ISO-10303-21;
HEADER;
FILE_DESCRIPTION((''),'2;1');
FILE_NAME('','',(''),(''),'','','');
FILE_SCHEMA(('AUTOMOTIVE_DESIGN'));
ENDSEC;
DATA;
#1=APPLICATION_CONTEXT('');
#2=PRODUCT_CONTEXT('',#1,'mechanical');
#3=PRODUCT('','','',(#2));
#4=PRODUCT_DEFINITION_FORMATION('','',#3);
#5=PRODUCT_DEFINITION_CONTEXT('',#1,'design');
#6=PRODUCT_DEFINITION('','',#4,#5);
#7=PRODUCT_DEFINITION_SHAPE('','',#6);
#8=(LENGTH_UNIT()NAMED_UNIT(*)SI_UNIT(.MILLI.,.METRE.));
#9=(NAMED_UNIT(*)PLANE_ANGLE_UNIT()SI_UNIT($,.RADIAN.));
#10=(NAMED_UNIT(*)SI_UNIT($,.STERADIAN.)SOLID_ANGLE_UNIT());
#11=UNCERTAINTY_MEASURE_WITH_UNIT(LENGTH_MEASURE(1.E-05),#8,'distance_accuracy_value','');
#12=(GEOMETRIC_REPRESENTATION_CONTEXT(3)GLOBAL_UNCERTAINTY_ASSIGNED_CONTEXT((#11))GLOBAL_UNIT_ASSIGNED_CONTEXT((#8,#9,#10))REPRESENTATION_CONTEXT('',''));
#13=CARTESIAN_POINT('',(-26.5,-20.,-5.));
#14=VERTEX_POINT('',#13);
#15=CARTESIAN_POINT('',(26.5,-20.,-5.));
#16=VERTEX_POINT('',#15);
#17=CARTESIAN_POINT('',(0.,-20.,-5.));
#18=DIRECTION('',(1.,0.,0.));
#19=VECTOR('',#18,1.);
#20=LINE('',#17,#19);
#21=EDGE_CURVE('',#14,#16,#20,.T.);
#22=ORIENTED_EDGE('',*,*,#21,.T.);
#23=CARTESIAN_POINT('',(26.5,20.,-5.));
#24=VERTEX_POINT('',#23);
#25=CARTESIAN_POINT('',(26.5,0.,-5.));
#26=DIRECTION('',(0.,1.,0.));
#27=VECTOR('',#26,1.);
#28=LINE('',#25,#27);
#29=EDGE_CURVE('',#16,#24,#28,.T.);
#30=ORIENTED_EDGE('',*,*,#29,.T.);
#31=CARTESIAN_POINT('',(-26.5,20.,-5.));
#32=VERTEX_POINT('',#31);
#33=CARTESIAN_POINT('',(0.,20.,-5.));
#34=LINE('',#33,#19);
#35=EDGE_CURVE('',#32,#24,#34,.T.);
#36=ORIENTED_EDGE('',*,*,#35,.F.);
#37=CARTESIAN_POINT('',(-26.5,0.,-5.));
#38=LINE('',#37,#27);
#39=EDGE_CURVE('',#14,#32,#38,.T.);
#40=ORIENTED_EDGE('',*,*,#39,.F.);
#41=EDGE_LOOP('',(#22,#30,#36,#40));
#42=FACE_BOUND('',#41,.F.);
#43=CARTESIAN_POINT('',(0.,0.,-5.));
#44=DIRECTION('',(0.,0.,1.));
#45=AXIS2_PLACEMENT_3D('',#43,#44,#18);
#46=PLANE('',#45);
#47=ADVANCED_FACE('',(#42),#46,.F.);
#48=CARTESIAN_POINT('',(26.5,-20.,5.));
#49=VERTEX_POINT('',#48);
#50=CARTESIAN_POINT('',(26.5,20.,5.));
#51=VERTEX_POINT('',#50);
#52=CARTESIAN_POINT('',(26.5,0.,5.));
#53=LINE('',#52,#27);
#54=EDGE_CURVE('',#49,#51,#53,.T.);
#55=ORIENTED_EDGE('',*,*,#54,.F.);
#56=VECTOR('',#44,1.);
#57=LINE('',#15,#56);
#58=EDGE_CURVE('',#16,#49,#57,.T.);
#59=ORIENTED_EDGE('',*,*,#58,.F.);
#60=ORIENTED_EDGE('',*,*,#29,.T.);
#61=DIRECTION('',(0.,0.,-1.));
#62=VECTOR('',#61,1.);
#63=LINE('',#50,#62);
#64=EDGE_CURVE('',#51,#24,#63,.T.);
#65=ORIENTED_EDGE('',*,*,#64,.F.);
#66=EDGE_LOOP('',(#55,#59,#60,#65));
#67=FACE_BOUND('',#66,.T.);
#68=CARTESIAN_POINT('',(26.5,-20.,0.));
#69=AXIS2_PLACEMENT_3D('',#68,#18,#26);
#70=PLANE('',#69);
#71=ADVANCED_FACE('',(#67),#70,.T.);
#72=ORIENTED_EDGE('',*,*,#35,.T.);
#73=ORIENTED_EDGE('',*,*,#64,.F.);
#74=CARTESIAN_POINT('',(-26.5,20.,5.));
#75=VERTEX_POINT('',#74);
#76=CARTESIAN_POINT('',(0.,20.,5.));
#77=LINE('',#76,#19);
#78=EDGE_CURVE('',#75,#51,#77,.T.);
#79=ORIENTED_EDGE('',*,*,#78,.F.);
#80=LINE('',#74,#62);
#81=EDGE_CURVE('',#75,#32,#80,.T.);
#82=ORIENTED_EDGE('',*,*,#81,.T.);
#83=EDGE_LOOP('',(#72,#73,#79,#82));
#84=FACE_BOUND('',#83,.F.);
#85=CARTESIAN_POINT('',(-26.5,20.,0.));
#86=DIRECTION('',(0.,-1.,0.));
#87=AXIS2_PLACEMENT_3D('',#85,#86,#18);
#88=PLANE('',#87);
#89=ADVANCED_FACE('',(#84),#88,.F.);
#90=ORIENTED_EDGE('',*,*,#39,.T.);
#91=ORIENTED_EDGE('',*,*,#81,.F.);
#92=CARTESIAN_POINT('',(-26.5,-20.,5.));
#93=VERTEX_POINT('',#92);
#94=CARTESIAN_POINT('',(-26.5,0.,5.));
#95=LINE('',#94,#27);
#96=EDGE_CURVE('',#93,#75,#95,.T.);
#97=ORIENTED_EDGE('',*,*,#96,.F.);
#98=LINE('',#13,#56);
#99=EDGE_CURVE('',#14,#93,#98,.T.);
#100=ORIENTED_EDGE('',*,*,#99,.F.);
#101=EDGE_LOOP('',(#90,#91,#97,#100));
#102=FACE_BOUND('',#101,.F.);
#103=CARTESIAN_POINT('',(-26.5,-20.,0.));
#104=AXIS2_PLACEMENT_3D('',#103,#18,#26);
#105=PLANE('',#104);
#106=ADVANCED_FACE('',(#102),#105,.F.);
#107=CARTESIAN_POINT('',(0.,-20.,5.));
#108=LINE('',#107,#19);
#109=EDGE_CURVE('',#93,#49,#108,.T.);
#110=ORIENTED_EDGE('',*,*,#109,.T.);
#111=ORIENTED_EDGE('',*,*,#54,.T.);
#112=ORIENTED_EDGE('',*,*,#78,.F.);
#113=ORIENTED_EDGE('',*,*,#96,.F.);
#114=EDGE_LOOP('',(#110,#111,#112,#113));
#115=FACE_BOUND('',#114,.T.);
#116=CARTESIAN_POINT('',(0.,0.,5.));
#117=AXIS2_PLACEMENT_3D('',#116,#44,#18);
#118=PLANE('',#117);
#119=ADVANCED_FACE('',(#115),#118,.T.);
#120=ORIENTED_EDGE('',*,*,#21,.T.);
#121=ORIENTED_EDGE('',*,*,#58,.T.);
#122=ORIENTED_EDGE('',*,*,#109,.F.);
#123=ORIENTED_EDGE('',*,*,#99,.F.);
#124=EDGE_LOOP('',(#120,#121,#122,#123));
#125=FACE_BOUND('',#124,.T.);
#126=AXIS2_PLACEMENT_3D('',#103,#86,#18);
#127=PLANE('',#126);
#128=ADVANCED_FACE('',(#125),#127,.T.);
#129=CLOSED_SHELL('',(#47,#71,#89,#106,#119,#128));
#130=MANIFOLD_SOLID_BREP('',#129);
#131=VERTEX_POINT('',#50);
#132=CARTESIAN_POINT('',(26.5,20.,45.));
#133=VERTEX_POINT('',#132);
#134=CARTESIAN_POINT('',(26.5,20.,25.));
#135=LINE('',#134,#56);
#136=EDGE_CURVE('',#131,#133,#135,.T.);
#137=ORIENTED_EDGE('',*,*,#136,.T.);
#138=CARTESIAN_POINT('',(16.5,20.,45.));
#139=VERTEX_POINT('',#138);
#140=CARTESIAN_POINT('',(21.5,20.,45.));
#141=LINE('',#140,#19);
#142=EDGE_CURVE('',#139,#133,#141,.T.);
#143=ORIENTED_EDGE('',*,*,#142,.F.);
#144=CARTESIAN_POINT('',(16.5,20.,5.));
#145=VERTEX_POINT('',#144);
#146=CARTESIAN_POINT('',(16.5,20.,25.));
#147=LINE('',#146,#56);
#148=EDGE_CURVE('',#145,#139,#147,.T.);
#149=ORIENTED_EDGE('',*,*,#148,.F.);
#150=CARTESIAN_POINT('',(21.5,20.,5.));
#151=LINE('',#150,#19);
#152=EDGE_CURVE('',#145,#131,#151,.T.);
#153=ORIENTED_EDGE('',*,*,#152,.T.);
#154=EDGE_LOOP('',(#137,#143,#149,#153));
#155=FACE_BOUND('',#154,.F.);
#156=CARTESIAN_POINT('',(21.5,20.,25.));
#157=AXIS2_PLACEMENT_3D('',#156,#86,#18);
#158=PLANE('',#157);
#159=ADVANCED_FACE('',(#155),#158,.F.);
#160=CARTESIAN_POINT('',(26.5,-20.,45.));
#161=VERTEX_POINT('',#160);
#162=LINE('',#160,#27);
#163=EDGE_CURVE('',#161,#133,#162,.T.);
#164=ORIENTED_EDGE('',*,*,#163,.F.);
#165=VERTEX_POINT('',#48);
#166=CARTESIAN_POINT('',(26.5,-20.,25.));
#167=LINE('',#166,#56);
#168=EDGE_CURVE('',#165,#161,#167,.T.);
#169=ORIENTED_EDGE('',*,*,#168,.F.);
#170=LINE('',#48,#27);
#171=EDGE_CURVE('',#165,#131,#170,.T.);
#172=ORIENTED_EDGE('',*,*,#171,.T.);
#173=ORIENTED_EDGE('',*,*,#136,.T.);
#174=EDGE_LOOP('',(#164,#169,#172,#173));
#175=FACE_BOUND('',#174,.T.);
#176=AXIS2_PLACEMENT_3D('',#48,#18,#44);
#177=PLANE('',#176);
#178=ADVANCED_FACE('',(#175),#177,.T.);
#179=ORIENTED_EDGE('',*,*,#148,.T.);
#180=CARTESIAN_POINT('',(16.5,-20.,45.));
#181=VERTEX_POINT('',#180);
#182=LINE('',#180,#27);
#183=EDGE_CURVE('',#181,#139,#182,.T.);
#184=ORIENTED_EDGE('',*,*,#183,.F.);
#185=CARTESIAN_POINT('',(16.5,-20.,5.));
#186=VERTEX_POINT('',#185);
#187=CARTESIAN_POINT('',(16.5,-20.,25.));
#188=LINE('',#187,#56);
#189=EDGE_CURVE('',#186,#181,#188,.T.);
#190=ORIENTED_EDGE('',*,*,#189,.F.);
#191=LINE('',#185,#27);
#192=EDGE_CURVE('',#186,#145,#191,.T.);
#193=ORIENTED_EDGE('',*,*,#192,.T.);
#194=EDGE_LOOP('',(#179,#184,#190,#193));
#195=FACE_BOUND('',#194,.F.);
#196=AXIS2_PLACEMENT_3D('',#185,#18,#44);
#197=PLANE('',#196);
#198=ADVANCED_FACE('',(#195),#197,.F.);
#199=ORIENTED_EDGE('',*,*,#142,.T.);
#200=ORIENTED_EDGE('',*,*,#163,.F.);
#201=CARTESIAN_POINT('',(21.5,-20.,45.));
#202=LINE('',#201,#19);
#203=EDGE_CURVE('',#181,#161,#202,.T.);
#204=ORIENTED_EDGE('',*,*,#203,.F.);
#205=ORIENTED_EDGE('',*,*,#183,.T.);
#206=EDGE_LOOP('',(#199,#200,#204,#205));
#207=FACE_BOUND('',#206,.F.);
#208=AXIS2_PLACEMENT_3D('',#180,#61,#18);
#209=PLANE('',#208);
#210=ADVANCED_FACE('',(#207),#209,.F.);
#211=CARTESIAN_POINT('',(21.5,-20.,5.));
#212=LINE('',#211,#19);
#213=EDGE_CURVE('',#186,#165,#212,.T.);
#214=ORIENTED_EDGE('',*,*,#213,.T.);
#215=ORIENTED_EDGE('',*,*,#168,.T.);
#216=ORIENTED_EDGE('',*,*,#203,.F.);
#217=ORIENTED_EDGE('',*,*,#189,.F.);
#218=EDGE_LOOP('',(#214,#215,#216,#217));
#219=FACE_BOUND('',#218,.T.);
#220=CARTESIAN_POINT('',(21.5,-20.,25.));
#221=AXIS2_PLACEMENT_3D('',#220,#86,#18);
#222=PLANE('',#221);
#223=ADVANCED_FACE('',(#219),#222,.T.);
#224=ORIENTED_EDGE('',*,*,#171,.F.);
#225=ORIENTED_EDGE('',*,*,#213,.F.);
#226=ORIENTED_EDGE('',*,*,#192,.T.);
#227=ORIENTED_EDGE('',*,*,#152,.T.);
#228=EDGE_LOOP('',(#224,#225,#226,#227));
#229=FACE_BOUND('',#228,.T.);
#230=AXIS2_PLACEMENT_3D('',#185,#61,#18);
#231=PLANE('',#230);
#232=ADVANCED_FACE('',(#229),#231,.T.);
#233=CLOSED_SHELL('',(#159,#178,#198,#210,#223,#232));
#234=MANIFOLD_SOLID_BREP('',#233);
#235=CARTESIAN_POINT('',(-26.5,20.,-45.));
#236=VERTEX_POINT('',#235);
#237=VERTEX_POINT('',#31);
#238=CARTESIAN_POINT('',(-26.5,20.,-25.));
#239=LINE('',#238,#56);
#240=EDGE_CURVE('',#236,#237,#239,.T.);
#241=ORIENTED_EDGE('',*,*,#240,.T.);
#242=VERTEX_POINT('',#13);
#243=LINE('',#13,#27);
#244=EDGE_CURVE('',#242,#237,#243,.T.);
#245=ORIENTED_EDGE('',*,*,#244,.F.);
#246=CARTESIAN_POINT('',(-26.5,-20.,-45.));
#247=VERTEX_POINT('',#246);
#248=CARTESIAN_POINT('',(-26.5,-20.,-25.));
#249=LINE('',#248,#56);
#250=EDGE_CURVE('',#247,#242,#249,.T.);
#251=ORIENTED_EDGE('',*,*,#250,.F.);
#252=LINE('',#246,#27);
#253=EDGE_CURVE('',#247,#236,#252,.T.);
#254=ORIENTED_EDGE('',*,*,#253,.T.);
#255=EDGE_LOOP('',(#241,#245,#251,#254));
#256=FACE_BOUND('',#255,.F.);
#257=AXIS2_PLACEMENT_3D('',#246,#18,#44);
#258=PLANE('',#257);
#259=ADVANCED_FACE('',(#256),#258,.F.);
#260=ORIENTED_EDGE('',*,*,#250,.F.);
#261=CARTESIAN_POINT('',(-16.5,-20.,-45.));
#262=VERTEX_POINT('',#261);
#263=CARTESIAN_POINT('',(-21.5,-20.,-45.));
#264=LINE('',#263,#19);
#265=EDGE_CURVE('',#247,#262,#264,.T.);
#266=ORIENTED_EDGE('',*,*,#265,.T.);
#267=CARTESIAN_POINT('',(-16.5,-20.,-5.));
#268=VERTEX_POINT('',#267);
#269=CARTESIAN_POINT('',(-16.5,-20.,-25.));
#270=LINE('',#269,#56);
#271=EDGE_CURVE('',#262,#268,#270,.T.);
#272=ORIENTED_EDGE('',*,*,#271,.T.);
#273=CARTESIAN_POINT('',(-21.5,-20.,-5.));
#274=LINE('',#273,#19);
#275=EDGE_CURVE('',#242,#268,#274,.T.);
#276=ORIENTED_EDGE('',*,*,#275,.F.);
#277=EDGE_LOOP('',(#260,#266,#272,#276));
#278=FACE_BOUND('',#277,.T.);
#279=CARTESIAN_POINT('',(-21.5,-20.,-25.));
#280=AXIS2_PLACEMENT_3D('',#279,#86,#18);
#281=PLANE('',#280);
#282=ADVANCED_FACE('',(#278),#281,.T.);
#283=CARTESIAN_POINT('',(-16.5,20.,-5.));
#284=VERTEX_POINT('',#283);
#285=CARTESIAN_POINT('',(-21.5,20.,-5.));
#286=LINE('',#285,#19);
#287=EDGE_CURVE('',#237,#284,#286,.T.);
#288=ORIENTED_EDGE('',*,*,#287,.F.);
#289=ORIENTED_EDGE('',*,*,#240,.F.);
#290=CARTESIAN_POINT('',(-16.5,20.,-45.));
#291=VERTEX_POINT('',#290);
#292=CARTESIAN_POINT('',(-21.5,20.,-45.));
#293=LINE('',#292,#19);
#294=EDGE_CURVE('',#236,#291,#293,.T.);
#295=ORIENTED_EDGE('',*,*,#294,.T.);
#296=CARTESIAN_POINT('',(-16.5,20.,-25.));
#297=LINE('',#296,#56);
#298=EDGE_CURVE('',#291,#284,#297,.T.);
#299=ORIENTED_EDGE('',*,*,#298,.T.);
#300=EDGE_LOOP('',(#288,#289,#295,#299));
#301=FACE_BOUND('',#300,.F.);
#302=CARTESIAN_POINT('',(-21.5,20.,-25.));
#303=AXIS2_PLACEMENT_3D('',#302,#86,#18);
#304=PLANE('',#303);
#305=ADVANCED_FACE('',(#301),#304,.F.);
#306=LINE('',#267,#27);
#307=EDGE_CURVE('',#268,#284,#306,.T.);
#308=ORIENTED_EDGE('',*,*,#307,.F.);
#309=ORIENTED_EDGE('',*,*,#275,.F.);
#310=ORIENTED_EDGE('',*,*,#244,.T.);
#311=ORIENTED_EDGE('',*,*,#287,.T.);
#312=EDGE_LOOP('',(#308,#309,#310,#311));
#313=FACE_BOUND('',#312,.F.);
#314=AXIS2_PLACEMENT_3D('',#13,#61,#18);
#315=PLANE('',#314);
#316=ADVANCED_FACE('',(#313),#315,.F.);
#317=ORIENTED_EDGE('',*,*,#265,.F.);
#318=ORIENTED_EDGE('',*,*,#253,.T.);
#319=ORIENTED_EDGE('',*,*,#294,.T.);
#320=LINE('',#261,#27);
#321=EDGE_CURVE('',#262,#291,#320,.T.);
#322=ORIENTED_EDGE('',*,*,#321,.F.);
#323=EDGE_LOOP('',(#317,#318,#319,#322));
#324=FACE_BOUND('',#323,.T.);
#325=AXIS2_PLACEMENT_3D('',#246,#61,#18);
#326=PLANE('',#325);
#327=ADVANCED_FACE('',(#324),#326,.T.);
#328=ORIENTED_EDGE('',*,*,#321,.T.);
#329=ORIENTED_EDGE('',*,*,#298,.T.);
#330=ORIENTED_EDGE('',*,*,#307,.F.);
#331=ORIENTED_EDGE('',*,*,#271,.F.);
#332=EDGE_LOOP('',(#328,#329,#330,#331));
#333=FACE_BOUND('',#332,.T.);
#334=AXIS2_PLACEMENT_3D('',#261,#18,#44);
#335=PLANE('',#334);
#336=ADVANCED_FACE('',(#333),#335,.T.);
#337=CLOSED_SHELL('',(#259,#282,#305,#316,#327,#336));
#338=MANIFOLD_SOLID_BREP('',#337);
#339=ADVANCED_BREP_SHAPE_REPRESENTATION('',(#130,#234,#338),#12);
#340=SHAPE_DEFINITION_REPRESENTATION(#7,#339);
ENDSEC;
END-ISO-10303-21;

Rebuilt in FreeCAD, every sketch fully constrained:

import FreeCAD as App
import Part
import Sketcher


def add_polygon(sketch, points):
    """Adds a closed chain of lines whose ends are joined by coincident constraints."""
    first, n = sketch.GeometryCount, len(points)
    for a, b in zip(points, points[1:] + points[:1]):
        sketch.addGeometry(Part.LineSegment(App.Vector(*a, 0), App.Vector(*b, 0)), False)
    for i in range(n):
        sketch.addConstraint(Sketcher.Constraint("Coincident", first + i, 2, first + (i + 1) % n, 1))

doc = App.newDocument("Part")
body = doc.addObject("PartDesign::Body", "Body")

sketch1 = body.newObject("Sketcher::SketchObject", "Sketch")
sketch1.AttachmentSupport = (doc.getObject("XY_Plane"), [""])
sketch1.MapMode = "FlatFace"
add_polygon(sketch1, [(-26, 20), (-26, -20), (26, -20), (26, 20)])
sketch1.addConstraint([
    Sketcher.Constraint("Vertical", 0),
    Sketcher.Constraint("Horizontal", 1),
    Sketcher.Constraint("Vertical", 2),
    Sketcher.Constraint("Horizontal", 3),
    Sketcher.Constraint("Symmetric", 0, 2, 2, 2, -1, 1),
    Sketcher.Constraint("DistanceX", 1, 1, 1, 2, 53.0),
    Sketcher.Constraint("DistanceY", 0, 2, 0, 1, 40.0),
])
pad1 = body.newObject("PartDesign::Pad", "Pad")
pad1.Profile = sketch1
pad1.Length = 10
pad1.Midplane = True
body2 = doc.addObject("PartDesign::Body", "Body001")

sketch2 = body2.newObject("Sketcher::SketchObject", "Sketch001")
sketch2.AttachmentSupport = (doc.getObject("XZ_Plane001"), [""])
sketch2.MapMode = "FlatFace"
sketch2.AttachmentOffset = App.Placement(App.Vector(0, 0, 20), App.Rotation())
add_polygon(sketch2, [(-26, -5), (-26, -45), (-16, -45), (-16, -5)])
sketch2.addConstraint([
    Sketcher.Constraint("Vertical", 0),
    Sketcher.Constraint("Horizontal", 1),
    Sketcher.Constraint("Vertical", 2),
    Sketcher.Constraint("Horizontal", 3),
    Sketcher.Constraint("DistanceX", 1, 1, 1, 2, 10.0),
    Sketcher.Constraint("DistanceY", 0, 2, 0, 1, 40.0),
    Sketcher.Constraint("DistanceY", 0, 2, -1, 1, 45.0),
    Sketcher.Constraint("DistanceX", 0, 2, -1, 1, 26.5),
])
pad2 = body2.newObject("PartDesign::Pad", "Pad001")
pad2.Profile = sketch2
pad2.Length = 40
pad2.Reversed = True
body3 = doc.addObject("PartDesign::Body", "Body002")

sketch3 = body3.newObject("Sketcher::SketchObject", "Sketch002")
sketch3.AttachmentSupport = (doc.getObject("XZ_Plane002"), [""])
sketch3.MapMode = "FlatFace"
sketch3.AttachmentOffset = App.Placement(App.Vector(0, 0, 20), App.Rotation())
add_polygon(sketch3, [(16, 45), (16, 5), (26, 5), (26, 45)])
sketch3.addConstraint([
    Sketcher.Constraint("Vertical", 0),
    Sketcher.Constraint("Horizontal", 1),
    Sketcher.Constraint("Vertical", 2),
    Sketcher.Constraint("Horizontal", 3),
    Sketcher.Constraint("DistanceX", 1, 1, 1, 2, 10.0),
    Sketcher.Constraint("DistanceY", 0, 2, 0, 1, 40.0),
    Sketcher.Constraint("DistanceY", -1, 1, 0, 2, 5.0),
    Sketcher.Constraint("DistanceX", -1, 1, 0, 2, 16.5),
])
pad3 = body3.newObject("PartDesign::Pad", "Pad002")
pad3.Profile = sketch3
pad3.Length = 40
pad3.Reversed = True

doc.recompute()
